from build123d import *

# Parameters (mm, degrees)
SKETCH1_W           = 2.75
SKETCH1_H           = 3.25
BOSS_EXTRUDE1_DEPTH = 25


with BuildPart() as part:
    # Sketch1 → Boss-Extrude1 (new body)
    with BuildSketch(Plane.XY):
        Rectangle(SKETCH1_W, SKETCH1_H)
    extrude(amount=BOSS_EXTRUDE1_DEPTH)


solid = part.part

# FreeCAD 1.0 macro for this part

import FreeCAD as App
import Part
import Sketcher

V = App.Vector
Q = App.Units.Quantity

doc = App.newDocument("Part")
body = doc.addObject("PartDesign::Body", "Body")

# Sketch on XY plane
sketch1 = body.newObject("Sketcher::SketchObject", "Sketch")
sketch1.AttachmentSupport = (doc.getObject("XY_Plane"), [""])
sketch1.MapMode = "FlatFace"
sketch1.addGeometry([
    Part.LineSegment(V(-1.4, 1.6, 0), V(-1.4, -1.6, 0)),
    Part.LineSegment(V(-1.4, -1.6, 0), V(1.4, -1.6, 0)),
    Part.LineSegment(V(1.4, -1.6, 0), V(1.4, 1.6, 0)),
    Part.LineSegment(V(1.4, 1.6, 0), V(-1.4, 1.6, 0)),
], False)
sketch1.addConstraint([
    Sketcher.Constraint("Coincident", 0, 2, 1, 1),
    Sketcher.Constraint("Coincident", 1, 2, 2, 1),
    Sketcher.Constraint("Coincident", 2, 2, 3, 1),
    Sketcher.Constraint("Coincident", 3, 2, 0, 1),
    Sketcher.Constraint("Vertical", 0),
    Sketcher.Constraint("Horizontal", 1),
    Sketcher.Constraint("Vertical", 2),
    Sketcher.Constraint("Horizontal", 3),
    Sketcher.Constraint("Symmetric", 0, 2, 2, 2, -1, 1),
    Sketcher.Constraint("DistanceX", 1, 1, 1, 2, Q("2.75 mm")),
    Sketcher.Constraint("DistanceY", 0, 2, 0, 1, Q("3.25 mm")),
])
pad1 = body.newObject("PartDesign::Pad", "Pad")
pad1.Profile = sketch1
pad1.Length = 25

doc.recompute()
